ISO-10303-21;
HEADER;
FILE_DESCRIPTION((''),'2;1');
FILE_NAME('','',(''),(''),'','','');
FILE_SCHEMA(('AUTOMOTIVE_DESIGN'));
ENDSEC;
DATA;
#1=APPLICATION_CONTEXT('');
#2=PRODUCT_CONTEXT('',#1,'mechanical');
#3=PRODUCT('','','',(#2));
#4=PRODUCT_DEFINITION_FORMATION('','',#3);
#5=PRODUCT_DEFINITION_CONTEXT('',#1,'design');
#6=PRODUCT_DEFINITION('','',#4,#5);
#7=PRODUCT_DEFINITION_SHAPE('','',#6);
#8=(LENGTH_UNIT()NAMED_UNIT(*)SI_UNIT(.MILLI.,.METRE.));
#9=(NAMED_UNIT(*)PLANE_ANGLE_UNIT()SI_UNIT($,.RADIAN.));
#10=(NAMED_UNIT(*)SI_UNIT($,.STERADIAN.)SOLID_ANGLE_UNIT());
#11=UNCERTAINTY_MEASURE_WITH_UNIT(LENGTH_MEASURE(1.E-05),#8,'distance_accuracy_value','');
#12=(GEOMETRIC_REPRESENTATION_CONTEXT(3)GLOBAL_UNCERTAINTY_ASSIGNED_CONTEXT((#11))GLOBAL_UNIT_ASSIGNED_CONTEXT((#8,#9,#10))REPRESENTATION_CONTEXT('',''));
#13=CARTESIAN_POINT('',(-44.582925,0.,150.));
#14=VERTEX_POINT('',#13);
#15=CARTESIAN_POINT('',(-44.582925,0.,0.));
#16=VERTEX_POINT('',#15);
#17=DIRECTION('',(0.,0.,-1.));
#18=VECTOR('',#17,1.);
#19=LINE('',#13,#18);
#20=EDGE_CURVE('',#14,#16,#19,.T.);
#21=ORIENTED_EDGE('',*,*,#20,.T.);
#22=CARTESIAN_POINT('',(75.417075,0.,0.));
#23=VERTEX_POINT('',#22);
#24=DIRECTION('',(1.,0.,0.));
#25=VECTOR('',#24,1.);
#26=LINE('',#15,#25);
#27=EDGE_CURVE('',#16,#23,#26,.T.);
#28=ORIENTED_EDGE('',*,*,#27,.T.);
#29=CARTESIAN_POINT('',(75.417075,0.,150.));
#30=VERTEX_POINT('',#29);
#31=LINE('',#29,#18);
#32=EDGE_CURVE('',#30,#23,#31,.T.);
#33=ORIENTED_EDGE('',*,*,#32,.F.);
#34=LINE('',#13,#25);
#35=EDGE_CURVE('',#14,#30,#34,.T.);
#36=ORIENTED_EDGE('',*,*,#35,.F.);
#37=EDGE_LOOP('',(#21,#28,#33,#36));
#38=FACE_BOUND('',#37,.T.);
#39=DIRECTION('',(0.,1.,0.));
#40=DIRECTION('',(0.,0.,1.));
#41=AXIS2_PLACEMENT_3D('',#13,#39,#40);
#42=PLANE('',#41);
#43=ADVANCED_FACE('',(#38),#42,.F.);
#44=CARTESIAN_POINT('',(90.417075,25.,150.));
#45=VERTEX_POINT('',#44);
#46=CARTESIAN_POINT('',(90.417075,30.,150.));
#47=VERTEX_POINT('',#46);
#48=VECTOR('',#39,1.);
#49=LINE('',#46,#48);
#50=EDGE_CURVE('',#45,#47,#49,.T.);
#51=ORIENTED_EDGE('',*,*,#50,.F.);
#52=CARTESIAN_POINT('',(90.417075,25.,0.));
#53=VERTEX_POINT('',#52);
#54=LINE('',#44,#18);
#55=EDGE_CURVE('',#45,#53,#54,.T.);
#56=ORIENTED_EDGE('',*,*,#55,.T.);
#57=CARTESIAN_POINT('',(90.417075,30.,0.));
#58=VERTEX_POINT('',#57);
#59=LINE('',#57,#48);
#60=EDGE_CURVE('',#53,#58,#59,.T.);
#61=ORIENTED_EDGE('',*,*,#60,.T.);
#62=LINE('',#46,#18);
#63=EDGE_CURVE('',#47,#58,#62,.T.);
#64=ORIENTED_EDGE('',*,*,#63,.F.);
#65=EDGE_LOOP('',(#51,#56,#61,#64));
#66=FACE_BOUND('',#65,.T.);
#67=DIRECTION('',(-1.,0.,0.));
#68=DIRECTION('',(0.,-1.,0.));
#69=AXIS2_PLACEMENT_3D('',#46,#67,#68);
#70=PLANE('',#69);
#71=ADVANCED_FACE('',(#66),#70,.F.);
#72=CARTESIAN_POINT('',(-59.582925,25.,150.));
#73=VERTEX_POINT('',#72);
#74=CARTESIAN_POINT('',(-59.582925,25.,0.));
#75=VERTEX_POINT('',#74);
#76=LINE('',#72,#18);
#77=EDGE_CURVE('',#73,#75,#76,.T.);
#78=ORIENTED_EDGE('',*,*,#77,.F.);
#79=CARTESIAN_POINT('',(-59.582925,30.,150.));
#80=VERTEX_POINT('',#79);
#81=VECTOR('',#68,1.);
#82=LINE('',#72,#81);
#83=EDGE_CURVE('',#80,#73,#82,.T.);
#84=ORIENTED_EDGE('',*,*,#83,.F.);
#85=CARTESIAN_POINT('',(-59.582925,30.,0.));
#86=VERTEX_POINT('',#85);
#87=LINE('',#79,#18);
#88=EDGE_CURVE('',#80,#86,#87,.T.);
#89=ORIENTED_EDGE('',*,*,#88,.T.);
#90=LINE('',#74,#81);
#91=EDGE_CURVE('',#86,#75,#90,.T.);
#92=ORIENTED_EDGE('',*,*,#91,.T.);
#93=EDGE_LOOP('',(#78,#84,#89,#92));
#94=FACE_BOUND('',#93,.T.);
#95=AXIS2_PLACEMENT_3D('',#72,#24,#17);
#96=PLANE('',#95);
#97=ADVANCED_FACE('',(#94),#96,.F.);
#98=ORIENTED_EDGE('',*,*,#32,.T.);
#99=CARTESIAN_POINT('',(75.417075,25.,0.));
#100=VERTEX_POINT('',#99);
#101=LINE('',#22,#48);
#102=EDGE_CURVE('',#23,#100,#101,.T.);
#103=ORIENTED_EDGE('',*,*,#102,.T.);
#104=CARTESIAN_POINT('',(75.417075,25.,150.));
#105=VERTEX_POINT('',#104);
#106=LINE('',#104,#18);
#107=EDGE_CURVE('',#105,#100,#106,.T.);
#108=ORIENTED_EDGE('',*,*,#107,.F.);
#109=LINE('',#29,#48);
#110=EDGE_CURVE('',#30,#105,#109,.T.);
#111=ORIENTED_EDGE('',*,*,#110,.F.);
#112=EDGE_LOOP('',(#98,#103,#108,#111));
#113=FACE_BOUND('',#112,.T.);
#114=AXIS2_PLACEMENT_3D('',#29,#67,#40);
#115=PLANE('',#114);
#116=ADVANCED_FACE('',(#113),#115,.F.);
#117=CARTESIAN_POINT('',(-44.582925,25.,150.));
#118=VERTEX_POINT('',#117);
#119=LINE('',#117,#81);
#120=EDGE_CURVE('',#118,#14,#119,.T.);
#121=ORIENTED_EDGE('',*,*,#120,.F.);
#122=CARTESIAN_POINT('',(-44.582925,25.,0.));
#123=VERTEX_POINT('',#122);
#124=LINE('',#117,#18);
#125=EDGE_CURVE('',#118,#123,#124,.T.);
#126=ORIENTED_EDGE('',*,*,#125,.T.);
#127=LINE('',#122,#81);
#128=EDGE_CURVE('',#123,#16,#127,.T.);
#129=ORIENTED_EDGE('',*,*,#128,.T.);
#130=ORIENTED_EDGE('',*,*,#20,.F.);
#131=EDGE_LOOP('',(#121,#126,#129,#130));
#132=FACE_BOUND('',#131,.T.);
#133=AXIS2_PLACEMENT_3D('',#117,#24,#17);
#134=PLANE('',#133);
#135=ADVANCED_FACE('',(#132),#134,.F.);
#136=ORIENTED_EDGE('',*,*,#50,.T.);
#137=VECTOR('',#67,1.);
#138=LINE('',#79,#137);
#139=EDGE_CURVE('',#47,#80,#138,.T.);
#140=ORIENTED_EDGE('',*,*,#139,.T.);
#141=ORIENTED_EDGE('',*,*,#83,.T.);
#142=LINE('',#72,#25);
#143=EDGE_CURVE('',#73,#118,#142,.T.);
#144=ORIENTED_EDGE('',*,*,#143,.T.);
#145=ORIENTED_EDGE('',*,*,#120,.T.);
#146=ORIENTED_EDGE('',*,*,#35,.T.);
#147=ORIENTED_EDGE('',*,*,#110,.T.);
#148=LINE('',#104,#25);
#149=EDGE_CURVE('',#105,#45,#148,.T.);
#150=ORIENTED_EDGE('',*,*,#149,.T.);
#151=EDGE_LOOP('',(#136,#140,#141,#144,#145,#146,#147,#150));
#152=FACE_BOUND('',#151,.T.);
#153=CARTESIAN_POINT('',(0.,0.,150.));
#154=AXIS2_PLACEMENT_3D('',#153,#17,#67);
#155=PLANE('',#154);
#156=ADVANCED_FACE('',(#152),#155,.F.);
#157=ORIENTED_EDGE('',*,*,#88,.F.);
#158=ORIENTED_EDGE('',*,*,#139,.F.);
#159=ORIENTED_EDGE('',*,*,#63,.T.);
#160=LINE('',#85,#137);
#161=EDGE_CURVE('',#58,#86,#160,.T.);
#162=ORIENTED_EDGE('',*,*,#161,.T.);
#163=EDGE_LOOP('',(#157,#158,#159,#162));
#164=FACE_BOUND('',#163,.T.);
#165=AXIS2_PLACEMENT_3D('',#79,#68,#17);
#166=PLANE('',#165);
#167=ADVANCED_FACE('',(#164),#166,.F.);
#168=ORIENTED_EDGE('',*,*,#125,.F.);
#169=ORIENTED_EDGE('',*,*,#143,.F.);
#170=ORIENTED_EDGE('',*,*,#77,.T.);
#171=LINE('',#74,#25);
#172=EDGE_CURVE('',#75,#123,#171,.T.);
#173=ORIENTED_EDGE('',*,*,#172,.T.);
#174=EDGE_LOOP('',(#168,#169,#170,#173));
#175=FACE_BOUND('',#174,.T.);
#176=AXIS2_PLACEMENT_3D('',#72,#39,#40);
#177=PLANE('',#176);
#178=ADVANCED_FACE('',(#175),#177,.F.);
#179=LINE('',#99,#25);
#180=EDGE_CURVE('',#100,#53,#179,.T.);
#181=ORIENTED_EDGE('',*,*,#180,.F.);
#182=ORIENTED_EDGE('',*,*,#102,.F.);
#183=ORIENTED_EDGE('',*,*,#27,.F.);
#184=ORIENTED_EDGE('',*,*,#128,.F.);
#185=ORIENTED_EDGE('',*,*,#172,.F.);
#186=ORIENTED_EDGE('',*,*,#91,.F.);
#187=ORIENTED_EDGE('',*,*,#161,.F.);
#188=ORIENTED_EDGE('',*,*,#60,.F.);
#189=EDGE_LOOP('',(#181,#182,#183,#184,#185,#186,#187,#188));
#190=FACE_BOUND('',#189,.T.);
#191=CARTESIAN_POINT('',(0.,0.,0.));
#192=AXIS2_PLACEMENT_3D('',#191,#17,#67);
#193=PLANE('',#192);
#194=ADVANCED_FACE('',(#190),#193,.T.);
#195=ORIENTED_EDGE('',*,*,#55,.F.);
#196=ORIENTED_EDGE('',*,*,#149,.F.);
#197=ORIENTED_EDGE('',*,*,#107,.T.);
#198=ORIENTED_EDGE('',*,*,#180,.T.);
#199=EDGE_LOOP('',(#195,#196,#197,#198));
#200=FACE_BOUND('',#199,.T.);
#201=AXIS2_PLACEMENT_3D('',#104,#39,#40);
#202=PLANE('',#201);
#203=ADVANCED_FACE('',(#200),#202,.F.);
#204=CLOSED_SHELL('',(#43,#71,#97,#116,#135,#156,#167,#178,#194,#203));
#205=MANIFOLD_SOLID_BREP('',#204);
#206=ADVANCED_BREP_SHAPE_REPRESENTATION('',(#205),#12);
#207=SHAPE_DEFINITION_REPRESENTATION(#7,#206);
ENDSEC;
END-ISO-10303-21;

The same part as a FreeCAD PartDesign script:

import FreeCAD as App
import Part
import Sketcher
from FreeCAD import Vector

doc = App.newDocument("Part")
body = doc.addObject("PartDesign::Body", "Body")

sketch1 = doc.addObject("Sketcher::SketchObject", "Sketch")
body.addObject(sketch1)
sketch1.AttachmentSupport = (doc.XY_Plane, [""])
sketch1.MapMode = "FlatFace"
sketch1.addGeometry(Part.LineSegment(Vector(-59.582925, 25, 0), Vector(-44.582925, 25, 0)), False)
sketch1.addGeometry(Part.LineSegment(Vector(-44.582925, 25, 0), Vector(-44.582925, 0, 0)), False)
sketch1.addGeometry(Part.LineSegment(Vector(-44.582925, 0, 0), Vector(75.417075, 0, 0)), False)
sketch1.addGeometry(Part.LineSegment(Vector(75.417075, 0, 0), Vector(75.417075, 25, 0)), False)
sketch1.addGeometry(Part.LineSegment(Vector(75.417075, 25, 0), Vector(90.417075, 25, 0)), False)
sketch1.addGeometry(Part.LineSegment(Vector(90.417075, 25, 0), Vector(90.417075, 30, 0)), False)
sketch1.addGeometry(Part.LineSegment(Vector(90.417075, 30, 0), Vector(-59.582925, 30, 0)), False)
sketch1.addGeometry(Part.LineSegment(Vector(-59.582925, 30, 0), Vector(-59.582925, 25, 0)), False)
sketch1.addConstraint(Sketcher.Constraint("Coincident", 0, 2, 1, 1))
sketch1.addConstraint(Sketcher.Constraint("Coincident", 1, 2, 2, 1))
sketch1.addConstraint(Sketcher.Constraint("Coincident", 2, 2, 3, 1))
sketch1.addConstraint(Sketcher.Constraint("Coincident", 3, 2, 4, 1))
sketch1.addConstraint(Sketcher.Constraint("Coincident", 4, 2, 5, 1))
sketch1.addConstraint(Sketcher.Constraint("Coincident", 5, 2, 6, 1))
sketch1.addConstraint(Sketcher.Constraint("Coincident", 6, 2, 7, 1))
sketch1.addConstraint(Sketcher.Constraint("Coincident", 7, 2, 0, 1))
sketch1.addConstraint(Sketcher.Constraint("Horizontal", 0))
sketch1.addConstraint(Sketcher.Constraint("Vertical", 1))
sketch1.addConstraint(Sketcher.Constraint("Horizontal", 2))
sketch1.addConstraint(Sketcher.Constraint("Vertical", 3))
sketch1.addConstraint(Sketcher.Constraint("Horizontal", 4))
sketch1.addConstraint(Sketcher.Constraint("Vertical", 5))
sketch1.addConstraint(Sketcher.Constraint("Horizontal", 6))
sketch1.addConstraint(Sketcher.Constraint("Vertical", 7))
sketch1.addConstraint(Sketcher.Constraint("PointOnObject", 1, 2, -1))
sketch1.addConstraint(Sketcher.Constraint("Horizontal", 0, 2, 3, 2))
sketch1.addConstraint(Sketcher.Constraint("Equal", 0, 4))
sketch1.addConstraint(Sketcher.Constraint("DistanceX", 0, 1, 0, 2, 15.0))
sketch1.addConstraint(Sketcher.Constraint("DistanceX", 2, 1, 2, 2, 120.0))
sketch1.addConstraint(Sketcher.Constraint("DistanceY", 1, 2, 1, 1, 25.0))
sketch1.addConstraint(Sketcher.Constraint("DistanceY", 5, 1, 5, 2, 5.0))
sketch1.addConstraint(Sketcher.Constraint("DistanceX", 0, 2, -1, 1, 44.582925))
pad1 = doc.addObject("PartDesign::Pad", "Pad")
body.addObject(pad1)
pad1.Profile = sketch1
pad1.Length = 150

doc.recompute()
